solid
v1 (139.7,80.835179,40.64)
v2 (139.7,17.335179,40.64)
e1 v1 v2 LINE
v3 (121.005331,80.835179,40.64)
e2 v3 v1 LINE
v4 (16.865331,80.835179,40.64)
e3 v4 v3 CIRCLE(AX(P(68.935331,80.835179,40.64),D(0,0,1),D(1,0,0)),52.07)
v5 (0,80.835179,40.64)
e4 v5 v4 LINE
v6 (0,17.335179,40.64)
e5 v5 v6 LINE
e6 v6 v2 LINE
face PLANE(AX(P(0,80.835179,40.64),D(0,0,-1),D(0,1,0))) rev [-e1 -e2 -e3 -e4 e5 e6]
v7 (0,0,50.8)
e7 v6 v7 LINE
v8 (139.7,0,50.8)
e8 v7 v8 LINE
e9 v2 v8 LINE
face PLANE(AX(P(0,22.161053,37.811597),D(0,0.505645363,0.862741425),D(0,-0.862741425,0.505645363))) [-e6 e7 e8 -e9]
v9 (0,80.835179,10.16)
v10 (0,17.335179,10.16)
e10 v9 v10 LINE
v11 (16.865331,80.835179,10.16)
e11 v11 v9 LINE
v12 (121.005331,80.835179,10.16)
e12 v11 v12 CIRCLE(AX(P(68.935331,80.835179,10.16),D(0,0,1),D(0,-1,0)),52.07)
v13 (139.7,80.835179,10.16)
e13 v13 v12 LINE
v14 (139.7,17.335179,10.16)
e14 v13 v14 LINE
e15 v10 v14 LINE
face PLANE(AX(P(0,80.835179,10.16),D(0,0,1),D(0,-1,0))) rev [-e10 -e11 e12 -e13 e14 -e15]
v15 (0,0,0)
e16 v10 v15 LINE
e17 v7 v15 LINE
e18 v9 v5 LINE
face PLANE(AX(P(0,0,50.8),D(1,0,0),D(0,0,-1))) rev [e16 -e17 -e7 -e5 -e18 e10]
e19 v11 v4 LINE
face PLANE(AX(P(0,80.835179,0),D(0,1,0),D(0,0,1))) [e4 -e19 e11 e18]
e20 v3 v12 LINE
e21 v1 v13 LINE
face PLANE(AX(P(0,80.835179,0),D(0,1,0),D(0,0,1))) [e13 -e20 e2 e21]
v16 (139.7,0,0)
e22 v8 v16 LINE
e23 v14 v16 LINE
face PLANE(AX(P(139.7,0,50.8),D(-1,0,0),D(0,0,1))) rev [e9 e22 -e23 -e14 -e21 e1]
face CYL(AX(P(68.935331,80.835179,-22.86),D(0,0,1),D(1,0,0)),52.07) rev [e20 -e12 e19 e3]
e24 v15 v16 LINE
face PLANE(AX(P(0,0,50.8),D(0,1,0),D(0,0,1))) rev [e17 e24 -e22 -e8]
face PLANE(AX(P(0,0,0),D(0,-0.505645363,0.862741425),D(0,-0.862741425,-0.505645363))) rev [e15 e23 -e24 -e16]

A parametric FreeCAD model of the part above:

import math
import FreeCAD as App
import Part
import Sketcher
from FreeCAD import Vector
Q = App.Units.Quantity


def add_polygon(sketch, points):
    """Adds a closed chain of lines whose ends are joined by coincident constraints."""
    first, n = sketch.GeometryCount, len(points)
    for a, b in zip(points, points[1:] + points[:1]):
        sketch.addGeometry(Part.LineSegment(App.Vector(*a, 0), App.Vector(*b, 0)), False)
    for i in range(n):
        sketch.addConstraint(Sketcher.Constraint("Coincident", first + i, 2, first + (i + 1) % n, 1))

doc = App.newDocument("Part")
body = doc.addObject("PartDesign::Body", "Body")

sketch1 = body.newObject("Sketcher::SketchObject", "Sketch")
sketch1.AttachmentSupport = (doc.getObject("XY_Plane"), [""])
sketch1.MapMode = "FlatFace"
add_polygon(sketch1, [(0, 76), (0, 0), (140, 0), (140, 76)])
sketch1.addConstraint(Sketcher.Constraint("Vertical", 0))
sketch1.addConstraint(Sketcher.Constraint("Horizontal", 1))
sketch1.addConstraint(Sketcher.Constraint("Vertical", 2))
sketch1.addConstraint(Sketcher.Constraint("Horizontal", 3))
sketch1.addConstraint(Sketcher.Constraint("Coincident", 0, 2, -1, 1))
sketch1.addConstraint(Sketcher.Constraint("DistanceY", 0, 2, 0, 1, Q("3 in")))
sketch1.addConstraint(Sketcher.Constraint("DistanceX", 1, 1, 1, 2, Q("5.5 in")))
pad1 = body.newObject("PartDesign::Pad", "Pad")
pad1.Profile = sketch1
pad1.Length = Q("2 in")

sketch2 = body.newObject("Sketcher::SketchObject", "Sketch001")
sketch2.AttachmentSupport = (doc.getObject("YZ_Plane"), [""])
sketch2.MapMode = "FlatFace"
sketch2.AttachmentOffset = App.Placement(Vector(0, 0, 5.5 * 25.4), App.Rotation())
add_polygon(sketch2, [(76, 51), (0, 51), (17, 41), (17, 10), (0, 0), (76, 0)])
sketch2.addConstraint(Sketcher.Constraint("Horizontal", 0))
sketch2.addConstraint(Sketcher.Constraint("Vertical", 2))
sketch2.addConstraint(Sketcher.Constraint("Horizontal", 4))
sketch2.addConstraint(Sketcher.Constraint("Vertical", 5))
sketch2.addConstraint(Sketcher.Constraint("Coincident", 3, 2, -1, 1))
sketch2.addConstraint(Sketcher.Constraint("PointOnObject", 0, 2, -2))
sketch2.addConstraint(Sketcher.Constraint("Equal", 1, 3))
sketch2.addConstraint(Sketcher.Constraint("DistanceX", 0, 2, 0, 1, Q("3 in")))
sketch2.addConstraint(Sketcher.Constraint("DistanceY", 5, 1, 5, 2, Q("2 in")))
sketch2.addConstraint(Sketcher.Constraint("DistanceY", 2, 2, 2, 1, Q("1.2 in")))
sketch2.addConstraint(Sketcher.Constraint("DistanceX", -1, 1, 1, 2, 17.335179))
pocket1 = body.newObject("PartDesign::Pocket", "Pocket")
pocket1.Profile = sketch2
pocket1.Type = "ThroughAll"

sketch3 = body.newObject("Sketcher::SketchObject", "Sketch002")
sketch3.AttachmentSupport = (doc.getObject("XZ_Plane"), [""])
sketch3.MapMode = "FlatFace"
sketch3.AttachmentOffset = App.Placement(Vector(0, 0, -17.335179), App.Rotation())
add_polygon(sketch3, [(0, 41), (140, 41), (140, 10), (0, 10)])
sketch3.addConstraint(Sketcher.Constraint("Horizontal", 0))
sketch3.addConstraint(Sketcher.Constraint("Vertical", 1))
sketch3.addConstraint(Sketcher.Constraint("Horizontal", 2))
sketch3.addConstraint(Sketcher.Constraint("Vertical", 3))
sketch3.addConstraint(Sketcher.Constraint("PointOnObject", 2, 2, -2))
sketch3.addConstraint(Sketcher.Constraint("DistanceX", 0, 1, 0, 2, Q("5.5 in")))
sketch3.addConstraint(Sketcher.Constraint("DistanceY", 1, 2, 1, 1, Q("1.2 in")))
sketch3.addConstraint(Sketcher.Constraint("DistanceY", -1, 1, 0, 2, Q("1.6 in")))
pad2 = body.newObject("PartDesign::Pad", "Pad001")
pad2.Profile = sketch3
pad2.Length = Q("2.5 in")
pad2.Reversed = True

sketch4 = body.newObject("Sketcher::SketchObject", "Sketch003")
sketch4.AttachmentSupport = (doc.getObject("XY_Plane"), [""])
sketch4.MapMode = "FlatFace"
sketch4.AttachmentOffset = App.Placement(Vector(0, 0, 1.6 * 25.4), App.Rotation())
sketch4.addGeometry(Part.LineSegment(Vector(121, 81, 0), Vector(17, 81, 0)), False)
sketch4.addGeometry(Part.ArcOfCircle(Part.Circle(Vector(69, 81, 0), Vector(0, 0, 1), 52), math.radians(180), math.radians(360)), False)
sketch4.addConstraint(Sketcher.Constraint("Coincident", 0, 1, 1, 2))
sketch4.addConstraint(Sketcher.Constraint("Coincident", 1, 1, 0, 2))
sketch4.addConstraint(Sketcher.Constraint("Horizontal", 0))
sketch4.addConstraint(Sketcher.Constraint("Horizontal", 1, 3, 0, 1))
sketch4.addConstraint(Sketcher.Constraint("Radius", 1, Q("2.05 in")))
sketch4.addConstraint(Sketcher.Constraint("DistanceX", -1, 1, 1, 3, 68.935331))
sketch4.addConstraint(Sketcher.Constraint("DistanceY", -1, 1, 1, 3, 80.835179))
pocket2 = body.newObject("PartDesign::Pocket", "Pocket001")
pocket2.Profile = sketch4
pocket2.Length = Q("2.5 in")

doc.recompute()
